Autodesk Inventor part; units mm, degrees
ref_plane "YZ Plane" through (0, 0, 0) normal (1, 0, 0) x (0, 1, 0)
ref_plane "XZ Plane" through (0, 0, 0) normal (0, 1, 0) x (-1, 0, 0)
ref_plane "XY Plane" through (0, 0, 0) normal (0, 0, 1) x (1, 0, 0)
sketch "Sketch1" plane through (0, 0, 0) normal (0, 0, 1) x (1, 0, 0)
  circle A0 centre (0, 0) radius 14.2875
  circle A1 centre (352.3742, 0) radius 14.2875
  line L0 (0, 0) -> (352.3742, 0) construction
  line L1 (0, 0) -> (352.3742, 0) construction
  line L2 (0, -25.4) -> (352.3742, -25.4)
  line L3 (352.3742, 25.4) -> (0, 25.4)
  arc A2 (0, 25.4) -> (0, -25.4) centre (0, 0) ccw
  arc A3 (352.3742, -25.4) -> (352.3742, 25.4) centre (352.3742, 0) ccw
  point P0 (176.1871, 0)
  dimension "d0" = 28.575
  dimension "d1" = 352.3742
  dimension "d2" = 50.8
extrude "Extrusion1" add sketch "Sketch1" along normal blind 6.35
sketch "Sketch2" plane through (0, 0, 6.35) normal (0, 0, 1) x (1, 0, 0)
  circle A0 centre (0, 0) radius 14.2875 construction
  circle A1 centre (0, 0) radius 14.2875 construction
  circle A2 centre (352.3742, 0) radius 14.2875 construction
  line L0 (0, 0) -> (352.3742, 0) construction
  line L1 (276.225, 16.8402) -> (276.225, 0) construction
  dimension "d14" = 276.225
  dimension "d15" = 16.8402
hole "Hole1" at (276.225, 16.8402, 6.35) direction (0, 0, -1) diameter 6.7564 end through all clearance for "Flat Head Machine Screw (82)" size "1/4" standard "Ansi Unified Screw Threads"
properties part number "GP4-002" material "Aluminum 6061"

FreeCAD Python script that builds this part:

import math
import FreeCAD as App
import Part
import Sketcher
from FreeCAD import Vector
Q = App.Units.Quantity

doc = App.newDocument("Part")
params = doc.addObject("Spreadsheet::Sheet", "Params")
for row, (alias, value) in enumerate([
    ("sketch1_radius", "1 in"),
    ("sketch1_diameter", "1.125 in"),
    ("sketch1_width", "13.873 in"),
    ("pad1_length", "0.25 in"),
    ("sketch2_diameter", "0.266 in"),
    ("hole_diameter", "0.266 in"),
], start=1):
    params.set(f"A{row}", alias)
    params.set(f"B{row}", "=" + value)
    params.setAlias(f"B{row}", alias)

body = doc.addObject("PartDesign::Body", "Body")

sketch1 = body.newObject("Sketcher::SketchObject", "Sketch")
sketch1.AttachmentSupport = (doc.getObject("XY_Plane"), [""])
sketch1.MapMode = "FlatFace"
sketch1.addGeometry([
    Part.ArcOfCircle(Part.Circle(Vector(0, 0, 0), Vector(0, 0, 1), 25), math.radians(90), math.radians(270)),
    Part.LineSegment(Vector(0, -25, 0), Vector(352, -25, 0)),
    Part.ArcOfCircle(Part.Circle(Vector(352, 0, 0), Vector(0, 0, 1), 25), math.radians(-90), math.radians(90)),
    Part.LineSegment(Vector(352, 25, 0), Vector(0, 25, 0)),
    Part.Circle(Vector(0, 0, 0), Vector(0, 0, 1), 14),
    Part.Circle(Vector(352, 0, 0), Vector(0, 0, 1), 14),
], False)
sketch1.addConstraint([
    Sketcher.Constraint("Tangent", 0, 2, 1, 1),
    Sketcher.Constraint("Tangent", 1, 2, 2, 1),
    Sketcher.Constraint("Tangent", 2, 2, 3, 1),
    Sketcher.Constraint("Tangent", 3, 2, 0, 1),
    Sketcher.Constraint("Horizontal", 1),
    Sketcher.Constraint("Horizontal", 3),
    Sketcher.Constraint("Coincident", 0, 3, -1, 1),
    Sketcher.Constraint("Coincident", 4, 3, -1, 1),
    Sketcher.Constraint("Coincident", 5, 3, 2, 3),
    Sketcher.Constraint("Equal", 4, 5),
    Sketcher.Constraint("Radius", 0, Q("1 in")),
    Sketcher.Constraint("Diameter", 4, Q("1.125 in")),
    Sketcher.Constraint("DistanceX", 1, 1, 1, 2, Q("13.873 in")),
])
sketch1.setExpression("Constraints[10]", "Params.sketch1_radius")
sketch1.setExpression("Constraints[11]", "Params.sketch1_diameter")
sketch1.setExpression("Constraints[12]", "Params.sketch1_width")
pad1 = body.newObject("PartDesign::Pad", "Pad")
pad1.Profile = sketch1
pad1.setExpression("Length", "Params.pad1_length")

sketch2 = body.newObject("Sketcher::SketchObject", "Sketch001")
sketch2.AttachmentSupport = (doc.getObject("XY_Plane"), [""])
sketch2.MapMode = "FlatFace"
sketch2.AttachmentOffset = App.Placement(Vector(0, 0, 0.25 * 25.4), App.Rotation())
sketch2.addGeometry(Part.Circle(Vector(276.2, 16.8, 0), Vector(0, 0, 1), 3.4), False)
sketch2.addConstraint([
    Sketcher.Constraint("Diameter", 0, Q("0.266 in")),
    Sketcher.Constraint("DistanceX", -1, 1, 0, 3, Q("10.875 in")),
    Sketcher.Constraint("DistanceY", -1, 1, 0, 3, Q("0.663 in")),
])
sketch2.setExpression("Constraints[0]", "Params.sketch2_diameter")
doc.recompute()
hole = body.newObject("PartDesign::Hole", "Hole")
hole.Profile = sketch2
hole.ThreadType = "None"
hole.setExpression("Diameter", "Params.hole_diameter")
hole.DepthType = "ThroughAll"

doc.recompute()
